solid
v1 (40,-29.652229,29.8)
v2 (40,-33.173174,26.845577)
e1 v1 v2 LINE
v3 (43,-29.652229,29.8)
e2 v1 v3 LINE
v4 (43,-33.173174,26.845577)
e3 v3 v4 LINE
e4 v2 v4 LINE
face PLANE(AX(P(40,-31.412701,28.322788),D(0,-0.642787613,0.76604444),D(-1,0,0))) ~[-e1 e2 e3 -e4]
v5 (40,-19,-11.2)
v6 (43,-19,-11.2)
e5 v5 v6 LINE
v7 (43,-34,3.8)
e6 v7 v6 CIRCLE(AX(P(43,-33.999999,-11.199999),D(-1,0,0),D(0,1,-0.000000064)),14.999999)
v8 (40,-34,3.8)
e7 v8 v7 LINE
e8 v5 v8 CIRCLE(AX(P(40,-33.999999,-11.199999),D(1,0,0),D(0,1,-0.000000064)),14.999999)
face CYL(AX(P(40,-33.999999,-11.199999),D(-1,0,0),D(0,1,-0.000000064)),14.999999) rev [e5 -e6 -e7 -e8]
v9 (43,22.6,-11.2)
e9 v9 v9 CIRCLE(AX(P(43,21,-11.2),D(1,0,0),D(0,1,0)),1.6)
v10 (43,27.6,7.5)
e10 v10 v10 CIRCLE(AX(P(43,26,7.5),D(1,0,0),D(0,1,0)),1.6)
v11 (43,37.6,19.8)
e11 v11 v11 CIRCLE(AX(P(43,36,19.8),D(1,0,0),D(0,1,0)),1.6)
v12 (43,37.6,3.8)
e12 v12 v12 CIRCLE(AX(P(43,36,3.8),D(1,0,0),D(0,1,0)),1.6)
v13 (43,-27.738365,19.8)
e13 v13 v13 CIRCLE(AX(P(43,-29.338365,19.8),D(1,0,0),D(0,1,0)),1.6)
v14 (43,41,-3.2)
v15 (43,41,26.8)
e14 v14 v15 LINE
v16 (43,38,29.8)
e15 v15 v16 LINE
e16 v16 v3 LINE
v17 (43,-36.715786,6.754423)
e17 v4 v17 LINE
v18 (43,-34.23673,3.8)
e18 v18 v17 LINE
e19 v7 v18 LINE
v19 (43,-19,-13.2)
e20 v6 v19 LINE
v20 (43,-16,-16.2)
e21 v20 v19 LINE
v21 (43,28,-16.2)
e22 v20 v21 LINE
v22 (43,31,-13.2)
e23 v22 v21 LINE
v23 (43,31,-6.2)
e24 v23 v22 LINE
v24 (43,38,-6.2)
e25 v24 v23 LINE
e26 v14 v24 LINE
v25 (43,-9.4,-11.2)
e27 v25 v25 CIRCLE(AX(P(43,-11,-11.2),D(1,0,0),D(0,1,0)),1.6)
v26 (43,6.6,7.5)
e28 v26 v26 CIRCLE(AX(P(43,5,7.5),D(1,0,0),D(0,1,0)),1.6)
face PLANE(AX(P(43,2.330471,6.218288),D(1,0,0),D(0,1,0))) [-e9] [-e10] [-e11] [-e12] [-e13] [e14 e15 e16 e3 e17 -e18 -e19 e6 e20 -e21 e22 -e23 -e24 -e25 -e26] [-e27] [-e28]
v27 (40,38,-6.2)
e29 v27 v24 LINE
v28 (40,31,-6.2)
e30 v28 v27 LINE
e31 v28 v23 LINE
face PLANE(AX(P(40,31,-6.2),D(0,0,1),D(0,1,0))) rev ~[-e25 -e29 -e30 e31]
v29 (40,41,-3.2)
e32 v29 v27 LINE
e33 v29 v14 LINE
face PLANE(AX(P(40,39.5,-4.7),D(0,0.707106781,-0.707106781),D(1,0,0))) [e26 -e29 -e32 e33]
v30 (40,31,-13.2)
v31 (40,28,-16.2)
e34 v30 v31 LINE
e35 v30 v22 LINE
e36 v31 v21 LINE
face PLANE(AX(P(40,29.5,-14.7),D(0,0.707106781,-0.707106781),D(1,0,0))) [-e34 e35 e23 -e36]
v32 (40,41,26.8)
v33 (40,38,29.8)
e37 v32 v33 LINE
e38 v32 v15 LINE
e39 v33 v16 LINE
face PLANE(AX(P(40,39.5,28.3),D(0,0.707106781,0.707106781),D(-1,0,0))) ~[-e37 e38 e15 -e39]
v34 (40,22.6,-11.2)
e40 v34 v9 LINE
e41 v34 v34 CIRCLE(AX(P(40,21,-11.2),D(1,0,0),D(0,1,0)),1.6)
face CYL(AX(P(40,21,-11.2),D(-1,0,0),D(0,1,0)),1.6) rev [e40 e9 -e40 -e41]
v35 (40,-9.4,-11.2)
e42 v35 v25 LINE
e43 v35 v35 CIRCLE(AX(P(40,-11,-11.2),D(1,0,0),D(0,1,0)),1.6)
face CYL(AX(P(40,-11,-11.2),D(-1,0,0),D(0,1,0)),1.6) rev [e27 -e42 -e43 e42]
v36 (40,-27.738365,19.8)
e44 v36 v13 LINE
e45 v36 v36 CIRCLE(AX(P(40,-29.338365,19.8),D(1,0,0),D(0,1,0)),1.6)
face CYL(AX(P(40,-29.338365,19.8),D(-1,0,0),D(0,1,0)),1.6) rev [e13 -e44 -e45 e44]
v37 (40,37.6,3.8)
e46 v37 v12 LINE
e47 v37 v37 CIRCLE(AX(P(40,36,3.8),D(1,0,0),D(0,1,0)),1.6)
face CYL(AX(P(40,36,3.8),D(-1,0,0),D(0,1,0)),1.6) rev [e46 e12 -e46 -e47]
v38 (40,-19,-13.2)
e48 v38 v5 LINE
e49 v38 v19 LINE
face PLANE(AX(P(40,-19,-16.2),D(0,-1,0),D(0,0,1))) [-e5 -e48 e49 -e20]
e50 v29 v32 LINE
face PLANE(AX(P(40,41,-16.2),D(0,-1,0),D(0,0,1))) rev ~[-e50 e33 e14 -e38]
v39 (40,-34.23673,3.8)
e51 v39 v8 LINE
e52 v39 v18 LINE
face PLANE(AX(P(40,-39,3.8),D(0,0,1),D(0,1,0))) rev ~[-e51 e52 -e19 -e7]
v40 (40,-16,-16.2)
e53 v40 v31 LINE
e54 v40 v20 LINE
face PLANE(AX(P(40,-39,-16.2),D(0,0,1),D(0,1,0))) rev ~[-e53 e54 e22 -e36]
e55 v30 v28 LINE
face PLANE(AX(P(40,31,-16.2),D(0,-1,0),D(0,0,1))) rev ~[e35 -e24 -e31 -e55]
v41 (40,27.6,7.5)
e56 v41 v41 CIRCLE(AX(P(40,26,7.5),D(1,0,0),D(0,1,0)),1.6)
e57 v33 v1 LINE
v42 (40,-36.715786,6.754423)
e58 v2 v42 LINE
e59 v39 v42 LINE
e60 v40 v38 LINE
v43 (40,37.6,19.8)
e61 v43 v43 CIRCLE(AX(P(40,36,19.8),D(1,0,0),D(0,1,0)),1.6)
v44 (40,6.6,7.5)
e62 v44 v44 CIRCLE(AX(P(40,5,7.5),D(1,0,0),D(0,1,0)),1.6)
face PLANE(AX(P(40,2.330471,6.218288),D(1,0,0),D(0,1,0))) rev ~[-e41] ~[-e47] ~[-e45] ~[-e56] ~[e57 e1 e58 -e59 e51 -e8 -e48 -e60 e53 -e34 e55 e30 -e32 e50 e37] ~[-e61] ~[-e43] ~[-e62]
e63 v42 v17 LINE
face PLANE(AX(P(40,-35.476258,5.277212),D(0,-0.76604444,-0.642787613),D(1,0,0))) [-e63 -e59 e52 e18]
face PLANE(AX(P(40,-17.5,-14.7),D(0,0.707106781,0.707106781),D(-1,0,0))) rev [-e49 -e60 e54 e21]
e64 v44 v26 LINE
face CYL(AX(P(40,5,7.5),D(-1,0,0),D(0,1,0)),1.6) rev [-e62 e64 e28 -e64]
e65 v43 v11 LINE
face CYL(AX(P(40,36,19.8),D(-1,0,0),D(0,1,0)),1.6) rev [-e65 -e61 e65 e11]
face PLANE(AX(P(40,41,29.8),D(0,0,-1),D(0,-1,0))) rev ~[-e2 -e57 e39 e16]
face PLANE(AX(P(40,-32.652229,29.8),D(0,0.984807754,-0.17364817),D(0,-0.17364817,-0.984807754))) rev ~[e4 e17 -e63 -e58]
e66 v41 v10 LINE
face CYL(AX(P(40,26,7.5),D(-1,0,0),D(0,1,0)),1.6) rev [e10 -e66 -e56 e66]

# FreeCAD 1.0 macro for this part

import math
import FreeCAD as App
import Part
import Sketcher
from FreeCAD import Vector
Q = App.Units.Quantity


def edges_at(feature, points):
    """Names of the edges that pass closest to the given points."""
    edges = feature.Shape.Edges
    near = lambda p: min(range(len(edges)), key=lambda i: edges[i].distToShape(Part.Vertex(*p))[0])
    return sorted({f"Edge{near(p) + 1}" for p in points})

doc = App.newDocument("Part")
body = doc.addObject("PartDesign::Body", "Body")

# Sketch on YZ plane
sketch1 = doc.addObject("Sketcher::SketchObject", "Sketch")
body.addObject(sketch1)
sketch1.AttachmentSupport = (doc.YZ_Plane, [""])
sketch1.MapMode = "FlatFace"
sketch1.addGeometry([
    Part.LineSegment(Vector(41, -16.2, 0), Vector(41, 29.8, 0)),  # 0
    Part.LineSegment(Vector(41, 29.8, 0), Vector(-32.7, 29.8, 0)),  # 1
    Part.LineSegment(Vector(-32.7, 29.8, 0), Vector(-39, -6.2, 0)),  # 2
    Part.LineSegment(Vector(-39, -6.2, 0), Vector(-39, -16.2, 0)),  # 3
    Part.LineSegment(Vector(-39, -16.2, 0), Vector(41, -16.2, 0)),  # 4
    Part.Circle(Vector(-11, -11.2, 0), Vector(0, 0, 1), 1.6),  # 5
    Part.Circle(Vector(21, -11.2, 0), Vector(0, 0, 1), 1.6),  # 6
    Part.Circle(Vector(36, 3.8, 0), Vector(0, 0, 1), 1.6),  # 7
    Part.Circle(Vector(-29.3, 19.8, 0), Vector(0, 0, 1), 1.6),  # 8
    Part.Circle(Vector(5, 7.5, 0), Vector(0, 0, 1), 1.6),  # 9
    Part.Circle(Vector(26, 7.5, 0), Vector(0, 0, 1), 1.6),  # 10
    Part.Circle(Vector(36, 19.8, 0), Vector(0, 0, 1), 1.6),  # 11
], False)
sketch1.addConstraint([
    Sketcher.Constraint("Coincident", 0, 2, 1, 1),
    Sketcher.Constraint("Coincident", 1, 2, 2, 1),
    Sketcher.Constraint("Coincident", 2, 2, 3, 1),
    Sketcher.Constraint("Coincident", 3, 2, 4, 1),
    Sketcher.Constraint("Coincident", 4, 2, 0, 1),
    Sketcher.Constraint("Vertical", 0),
    Sketcher.Constraint("Horizontal", 1),
    Sketcher.Constraint("Vertical", 3),
    Sketcher.Constraint("Horizontal", 4),
    Sketcher.Constraint("Equal", 5, 6),
    Sketcher.Constraint("Equal", 6, 7),
    Sketcher.Constraint("Equal", 7, 8),
    Sketcher.Constraint("Equal", 8, 9),
    Sketcher.Constraint("Equal", 9, 10),
    Sketcher.Constraint("Equal", 10, 11),
    Sketcher.Constraint("Horizontal", 5, 3, 6, 3),
    Sketcher.Constraint("Horizontal", 9, 3, 10, 3),
    Sketcher.Constraint("Horizontal", 8, 3, 11, 3),
    Sketcher.Constraint("Vertical", 7, 3, 11, 3),
    Sketcher.Constraint("Diameter", 5, Q("3.2 mm")),
    Sketcher.Constraint("DistanceX", 4, 1, 4, 2, Q("80 mm")),
    Sketcher.Constraint("DistanceY", 0, 1, 0, 2, Q("46 mm")),
    Sketcher.Constraint("DistanceY", 3, 2, 3, 1, Q("10 mm")),
    Sketcher.Constraint("Angle", 2, Q("-100 deg")),
    Sketcher.Constraint("DistanceX", 5, 3, -1, 1, Q("11 mm")),
    Sketcher.Constraint("DistanceX", -1, 1, 6, 3, Q("21 mm")),
    Sketcher.Constraint("DistanceX", -1, 1, 7, 3, Q("36 mm")),
    Sketcher.Constraint("DistanceX", -1, 1, 9, 3, Q("5 mm")),
    Sketcher.Constraint("DistanceX", -1, 1, 10, 3, Q("26 mm")),
    Sketcher.Constraint("DistanceX", -1, 1, 0, 2, Q("41 mm")),
    Sketcher.Constraint("DistanceY", 6, 3, 7, 3, Q("15 mm")),
    Sketcher.Constraint("DistanceY", 5, 3, 8, 3, Q("31 mm")),
    Sketcher.Constraint("DistanceY", 11, 3, 0, 2, Q("10 mm")),
    Sketcher.Constraint("DistanceY", 5, 3, -1, 1, Q("11.2 mm")),
    Sketcher.Constraint("DistanceY", -1, 1, 9, 3, Q("7.5 mm")),
    Sketcher.Constraint("DistanceX", 8, 3, -1, 1, Q("29.338365 mm")),
])
pad1 = doc.addObject("PartDesign::Pad", "Pad")
body.addObject(pad1)
pad1.Profile = sketch1
pad1.Length = 3

# Sketch on YZ plane
sketch2 = doc.addObject("Sketcher::SketchObject", "Sketch001")
body.addObject(sketch2)
sketch2.AttachmentSupport = (doc.YZ_Plane, [""])
sketch2.MapMode = "FlatFace"
sketch2.addGeometry([
    Part.LineSegment(Vector(31, -6, 0), Vector(31, -16, 0)),  # 0
    Part.LineSegment(Vector(31, -16, 0), Vector(41, -16, 0)),  # 1
    Part.LineSegment(Vector(41, -16, 0), Vector(41, -6, 0)),  # 2
    Part.LineSegment(Vector(41, -6, 0), Vector(31, -6, 0)),  # 3
    Part.LineSegment(Vector(-39, 4, 0), Vector(-39, -16, 0)),  # 4
    Part.LineSegment(Vector(-39, -16, 0), Vector(-19, -16, 0)),  # 5
    Part.LineSegment(Vector(-19, -16, 0), Vector(-19, -11, 0)),  # 6
    Part.ArcOfCircle(Part.Circle(Vector(-34, -11, 0), Vector(0, 0, 1), 15), math.radians(0), math.radians(90)),  # 7
    Part.LineSegment(Vector(-34, 4, 0), Vector(-39, 4, 0)),  # 8
], False)
sketch2.addConstraint([
    Sketcher.Constraint("Coincident", 0, 2, 1, 1),
    Sketcher.Constraint("Coincident", 1, 2, 2, 1),
    Sketcher.Constraint("Coincident", 2, 2, 3, 1),
    Sketcher.Constraint("Coincident", 3, 2, 0, 1),
    Sketcher.Constraint("Coincident", 4, 2, 5, 1),
    Sketcher.Constraint("Coincident", 5, 2, 6, 1),
    Sketcher.Constraint("Tangent", 6, 2, 7, 1),
    Sketcher.Constraint("Tangent", 7, 2, 8, 1),
    Sketcher.Constraint("Coincident", 8, 2, 4, 1),
    Sketcher.Constraint("Vertical", 0),
    Sketcher.Constraint("Horizontal", 1),
    Sketcher.Constraint("Vertical", 2),
    Sketcher.Constraint("Horizontal", 3),
    Sketcher.Constraint("Vertical", 4),
    Sketcher.Constraint("Horizontal", 5),
    Sketcher.Constraint("Vertical", 6),
    Sketcher.Constraint("Horizontal", 8),
    Sketcher.Constraint("Horizontal", 1, 2, 4, 2),
    Sketcher.Constraint("Equal", 3, 0),
    Sketcher.Constraint("Equal", 5, 4),
    Sketcher.Constraint("Radius", 7, Q("14.999999 mm")),
    Sketcher.Constraint("DistanceX", 1, 1, 1, 2, Q("10 mm")),
    Sketcher.Constraint("DistanceX", 5, 1, 5, 2, Q("20 mm")),
    Sketcher.Constraint("DistanceX", 7, 3, -1, 1, Q("33.999999 mm")),
    Sketcher.Constraint("DistanceX", -1, 1, 0, 2, Q("31 mm")),
    Sketcher.Constraint("DistanceY", 7, 3, -1, 1, Q("11.199999 mm")),
])
pocket1 = doc.addObject("PartDesign::Pocket", "Pocket")
body.addObject(pocket1)
pocket1.Profile = sketch2
pocket1.Type = "ThroughAll"
pocket1.Reversed = True
doc.recompute()

chamfer = doc.addObject("PartDesign::Chamfer", "Chamfer")
body.addObject(chamfer)
chamfer.Base = (pocket1, edges_at(pocket1, [
    (1.5, -32.652, 29.8),
    (1.5, -37.237, 3.8),
    (1.5, -19, -16.2),
    (1.5, 41, 29.8),
    (1.5, 41, -6.2),
    (1.5, 31, -16.2),
]))
chamfer.Size = 3
body2 = doc.addObject("PartDesign::Body", "Body001")
doc.recompute()

body.Placement = App.Placement(Vector(40, 0, 0), App.Rotation(Vector(0, 0, 1), 0))
boolean = doc.addObject("PartDesign::Boolean", "Boolean")
body2.addObject(boolean)
boolean.Type = "Fuse"
boolean.addObjects([body])

doc.recompute()
